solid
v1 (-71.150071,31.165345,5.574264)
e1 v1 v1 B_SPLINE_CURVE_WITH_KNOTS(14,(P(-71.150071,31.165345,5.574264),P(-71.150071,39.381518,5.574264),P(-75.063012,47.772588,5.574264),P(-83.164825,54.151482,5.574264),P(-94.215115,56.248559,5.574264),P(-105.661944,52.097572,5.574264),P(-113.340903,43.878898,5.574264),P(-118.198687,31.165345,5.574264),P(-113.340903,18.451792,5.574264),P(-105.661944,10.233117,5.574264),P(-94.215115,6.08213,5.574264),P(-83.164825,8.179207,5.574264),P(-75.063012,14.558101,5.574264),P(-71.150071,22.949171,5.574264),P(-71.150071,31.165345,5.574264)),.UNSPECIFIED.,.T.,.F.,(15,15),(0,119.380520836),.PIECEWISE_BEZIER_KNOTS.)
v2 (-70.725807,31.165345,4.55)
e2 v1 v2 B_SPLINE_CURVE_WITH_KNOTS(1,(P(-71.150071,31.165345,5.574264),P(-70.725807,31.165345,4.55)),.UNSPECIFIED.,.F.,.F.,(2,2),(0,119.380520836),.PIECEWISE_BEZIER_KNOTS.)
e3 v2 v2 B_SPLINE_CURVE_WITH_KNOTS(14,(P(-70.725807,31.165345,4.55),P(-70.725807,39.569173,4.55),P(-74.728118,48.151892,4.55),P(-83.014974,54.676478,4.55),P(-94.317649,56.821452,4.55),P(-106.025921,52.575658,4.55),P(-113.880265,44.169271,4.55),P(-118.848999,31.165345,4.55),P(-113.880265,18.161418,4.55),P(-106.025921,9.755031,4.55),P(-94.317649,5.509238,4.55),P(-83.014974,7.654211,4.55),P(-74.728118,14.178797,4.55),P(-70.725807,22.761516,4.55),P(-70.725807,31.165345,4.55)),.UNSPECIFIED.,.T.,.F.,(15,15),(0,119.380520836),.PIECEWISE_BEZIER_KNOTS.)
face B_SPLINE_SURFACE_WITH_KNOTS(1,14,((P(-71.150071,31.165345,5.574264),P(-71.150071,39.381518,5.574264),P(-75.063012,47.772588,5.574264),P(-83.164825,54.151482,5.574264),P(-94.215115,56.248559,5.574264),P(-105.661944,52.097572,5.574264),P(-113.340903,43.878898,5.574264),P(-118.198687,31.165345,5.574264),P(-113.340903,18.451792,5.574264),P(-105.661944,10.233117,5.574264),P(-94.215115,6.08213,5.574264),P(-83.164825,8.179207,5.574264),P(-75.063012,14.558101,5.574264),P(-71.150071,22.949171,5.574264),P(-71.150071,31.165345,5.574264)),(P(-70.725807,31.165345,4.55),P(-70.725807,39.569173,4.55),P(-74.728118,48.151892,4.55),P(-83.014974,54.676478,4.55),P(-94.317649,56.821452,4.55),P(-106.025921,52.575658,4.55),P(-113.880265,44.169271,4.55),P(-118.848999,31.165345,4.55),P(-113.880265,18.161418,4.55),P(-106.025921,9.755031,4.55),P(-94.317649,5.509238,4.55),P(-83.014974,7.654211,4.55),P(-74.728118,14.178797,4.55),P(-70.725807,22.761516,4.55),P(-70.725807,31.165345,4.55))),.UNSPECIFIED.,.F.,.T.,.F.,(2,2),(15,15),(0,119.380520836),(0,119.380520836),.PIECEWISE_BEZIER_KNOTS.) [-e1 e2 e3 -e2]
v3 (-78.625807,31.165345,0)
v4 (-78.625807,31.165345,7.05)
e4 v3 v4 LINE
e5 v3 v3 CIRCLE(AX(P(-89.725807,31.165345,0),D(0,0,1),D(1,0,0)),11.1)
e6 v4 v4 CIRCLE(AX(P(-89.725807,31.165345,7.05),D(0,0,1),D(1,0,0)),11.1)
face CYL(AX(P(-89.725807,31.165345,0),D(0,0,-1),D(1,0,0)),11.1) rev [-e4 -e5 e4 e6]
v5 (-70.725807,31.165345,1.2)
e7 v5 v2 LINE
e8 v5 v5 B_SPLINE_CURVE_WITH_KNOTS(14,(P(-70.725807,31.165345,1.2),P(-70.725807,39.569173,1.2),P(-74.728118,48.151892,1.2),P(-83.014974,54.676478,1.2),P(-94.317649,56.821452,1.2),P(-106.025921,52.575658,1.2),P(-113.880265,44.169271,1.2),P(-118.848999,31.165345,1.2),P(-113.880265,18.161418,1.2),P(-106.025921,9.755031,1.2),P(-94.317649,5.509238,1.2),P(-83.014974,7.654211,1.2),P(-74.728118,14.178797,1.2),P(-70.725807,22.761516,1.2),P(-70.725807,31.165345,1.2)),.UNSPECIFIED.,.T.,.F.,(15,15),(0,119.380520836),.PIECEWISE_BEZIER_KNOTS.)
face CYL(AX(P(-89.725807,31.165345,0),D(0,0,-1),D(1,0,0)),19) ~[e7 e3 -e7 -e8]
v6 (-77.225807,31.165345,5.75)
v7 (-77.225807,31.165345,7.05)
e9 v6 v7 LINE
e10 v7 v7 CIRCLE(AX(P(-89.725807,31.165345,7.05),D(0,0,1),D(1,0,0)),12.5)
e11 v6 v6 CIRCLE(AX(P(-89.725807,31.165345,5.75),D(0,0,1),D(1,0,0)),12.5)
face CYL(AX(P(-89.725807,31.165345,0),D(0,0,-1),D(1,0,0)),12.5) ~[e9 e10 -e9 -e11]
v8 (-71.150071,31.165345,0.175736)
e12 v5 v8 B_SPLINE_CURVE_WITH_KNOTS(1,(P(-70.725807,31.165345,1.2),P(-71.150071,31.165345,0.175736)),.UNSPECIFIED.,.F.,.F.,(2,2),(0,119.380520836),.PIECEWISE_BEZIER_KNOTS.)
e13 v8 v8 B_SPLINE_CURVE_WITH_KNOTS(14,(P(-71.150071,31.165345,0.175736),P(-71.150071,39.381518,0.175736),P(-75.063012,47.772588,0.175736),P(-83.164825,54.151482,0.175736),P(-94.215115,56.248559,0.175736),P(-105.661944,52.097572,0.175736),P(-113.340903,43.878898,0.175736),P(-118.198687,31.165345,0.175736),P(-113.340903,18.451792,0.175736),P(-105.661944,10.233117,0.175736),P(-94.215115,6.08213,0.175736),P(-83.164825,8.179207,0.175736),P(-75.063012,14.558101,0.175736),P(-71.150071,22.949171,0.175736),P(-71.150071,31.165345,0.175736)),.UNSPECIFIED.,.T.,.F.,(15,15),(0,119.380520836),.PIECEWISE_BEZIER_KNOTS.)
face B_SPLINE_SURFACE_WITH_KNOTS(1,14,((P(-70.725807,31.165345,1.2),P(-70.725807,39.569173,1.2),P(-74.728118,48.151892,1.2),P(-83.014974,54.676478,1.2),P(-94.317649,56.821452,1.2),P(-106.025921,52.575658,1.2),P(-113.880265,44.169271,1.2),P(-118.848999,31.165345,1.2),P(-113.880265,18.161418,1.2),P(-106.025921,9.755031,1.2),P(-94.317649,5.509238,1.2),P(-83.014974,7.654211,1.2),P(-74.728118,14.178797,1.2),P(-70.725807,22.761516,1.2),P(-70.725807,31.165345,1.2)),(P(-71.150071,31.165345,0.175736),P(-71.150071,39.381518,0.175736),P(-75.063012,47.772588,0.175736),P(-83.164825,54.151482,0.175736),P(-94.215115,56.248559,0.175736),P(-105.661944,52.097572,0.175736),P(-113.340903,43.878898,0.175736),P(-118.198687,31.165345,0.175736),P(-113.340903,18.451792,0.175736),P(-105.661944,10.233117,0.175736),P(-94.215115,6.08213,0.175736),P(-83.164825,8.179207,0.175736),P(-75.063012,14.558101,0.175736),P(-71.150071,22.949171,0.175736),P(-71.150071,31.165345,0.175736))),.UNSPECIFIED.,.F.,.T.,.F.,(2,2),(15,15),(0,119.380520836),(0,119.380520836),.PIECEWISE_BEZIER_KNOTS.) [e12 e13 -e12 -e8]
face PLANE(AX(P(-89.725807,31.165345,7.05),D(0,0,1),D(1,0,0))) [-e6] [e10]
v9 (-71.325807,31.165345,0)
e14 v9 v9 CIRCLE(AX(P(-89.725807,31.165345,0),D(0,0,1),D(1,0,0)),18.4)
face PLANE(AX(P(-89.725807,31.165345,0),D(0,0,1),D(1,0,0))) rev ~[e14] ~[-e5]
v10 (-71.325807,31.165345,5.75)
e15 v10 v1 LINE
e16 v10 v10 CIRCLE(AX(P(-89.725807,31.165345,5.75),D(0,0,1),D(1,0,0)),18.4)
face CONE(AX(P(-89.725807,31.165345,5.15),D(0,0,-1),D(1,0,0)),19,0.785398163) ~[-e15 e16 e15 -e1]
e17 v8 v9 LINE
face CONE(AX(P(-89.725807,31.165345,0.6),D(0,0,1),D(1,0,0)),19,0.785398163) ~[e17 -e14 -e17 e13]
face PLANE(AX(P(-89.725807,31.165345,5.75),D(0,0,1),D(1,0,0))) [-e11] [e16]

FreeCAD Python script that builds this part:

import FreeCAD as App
import Part
import Sketcher

V = App.Vector


def edges_at(feature, points):
    """Names of the edges that pass closest to the given points."""
    edges = feature.Shape.Edges
    near = lambda p: min(range(len(edges)), key=lambda i: edges[i].distToShape(Part.Vertex(*p))[0])
    return sorted({f"Edge{near(p) + 1}" for p in points})

doc = App.newDocument("Part")
body = doc.addObject("PartDesign::Body", "Body")

# Sketch on XY plane
sketch1 = body.newObject("Sketcher::SketchObject", "Sketch")
sketch1.AttachmentSupport = (doc.getObject("XY_Plane"), [""])
sketch1.MapMode = "FlatFace"
sketch1.addGeometry([
    Part.Circle(V(-90, 31, 0), V(0, 0, 1), 19),
    Part.Circle(V(-90, 31, 0), V(0, 0, 1), 12),
], False)
sketch1.addConstraint([
    Sketcher.Constraint("Coincident", 1, 3, 0, 3),
    Sketcher.Constraint("Diameter", 0, 38.0),
    Sketcher.Constraint("Diameter", 1, 25.0),
    Sketcher.Constraint("DistanceX", 0, 3, -1, 1, 89.725807),
    Sketcher.Constraint("DistanceY", -1, 1, 0, 3, 31.165345),
])
pad1 = body.newObject("PartDesign::Pad", "Pad")
pad1.Profile = sketch1
pad1.Length = 5.75

# Sketch on XY plane
sketch2 = body.newObject("Sketcher::SketchObject", "Sketch001")
sketch2.AttachmentSupport = (doc.getObject("XY_Plane"), [""])
sketch2.MapMode = "FlatFace"
sketch2.addGeometry([
    Part.Circle(V(-90, 31, 0), V(0, 0, 1), 12),
    Part.Circle(V(-90, 31, 0), V(0, 0, 1), 11),
], False)
sketch2.addConstraint([
    Sketcher.Constraint("Coincident", 1, 3, 0, 3),
    Sketcher.Constraint("Diameter", 0, 25.0),
    Sketcher.Constraint("Diameter", 1, 22.2),
    Sketcher.Constraint("DistanceX", 0, 3, -1, 1, 89.725807),
    Sketcher.Constraint("DistanceY", -1, 1, 0, 3, 31.165345),
])
pad2 = body.newObject("PartDesign::Pad", "Pad001")
pad2.Profile = sketch2
pad2.Length = 7.05
doc.recompute()

chamfer = body.newObject("PartDesign::Chamfer", "Chamfer")
chamfer.Base = (pad2, edges_at(pad2, [(-108.726, 31.165, 5.75), (-108.726, 31.165, 0)]))
chamfer.Size = 0.6
doc.recompute()

chamfer2 = body.newObject("PartDesign::Chamfer", "Chamfer001")
chamfer2.Base = (chamfer, edges_at(chamfer, [(-108.726, 31.165, 5.15), (-108.726, 31.165, 0.6)]))
chamfer2.Size = 0.6

doc.recompute()
